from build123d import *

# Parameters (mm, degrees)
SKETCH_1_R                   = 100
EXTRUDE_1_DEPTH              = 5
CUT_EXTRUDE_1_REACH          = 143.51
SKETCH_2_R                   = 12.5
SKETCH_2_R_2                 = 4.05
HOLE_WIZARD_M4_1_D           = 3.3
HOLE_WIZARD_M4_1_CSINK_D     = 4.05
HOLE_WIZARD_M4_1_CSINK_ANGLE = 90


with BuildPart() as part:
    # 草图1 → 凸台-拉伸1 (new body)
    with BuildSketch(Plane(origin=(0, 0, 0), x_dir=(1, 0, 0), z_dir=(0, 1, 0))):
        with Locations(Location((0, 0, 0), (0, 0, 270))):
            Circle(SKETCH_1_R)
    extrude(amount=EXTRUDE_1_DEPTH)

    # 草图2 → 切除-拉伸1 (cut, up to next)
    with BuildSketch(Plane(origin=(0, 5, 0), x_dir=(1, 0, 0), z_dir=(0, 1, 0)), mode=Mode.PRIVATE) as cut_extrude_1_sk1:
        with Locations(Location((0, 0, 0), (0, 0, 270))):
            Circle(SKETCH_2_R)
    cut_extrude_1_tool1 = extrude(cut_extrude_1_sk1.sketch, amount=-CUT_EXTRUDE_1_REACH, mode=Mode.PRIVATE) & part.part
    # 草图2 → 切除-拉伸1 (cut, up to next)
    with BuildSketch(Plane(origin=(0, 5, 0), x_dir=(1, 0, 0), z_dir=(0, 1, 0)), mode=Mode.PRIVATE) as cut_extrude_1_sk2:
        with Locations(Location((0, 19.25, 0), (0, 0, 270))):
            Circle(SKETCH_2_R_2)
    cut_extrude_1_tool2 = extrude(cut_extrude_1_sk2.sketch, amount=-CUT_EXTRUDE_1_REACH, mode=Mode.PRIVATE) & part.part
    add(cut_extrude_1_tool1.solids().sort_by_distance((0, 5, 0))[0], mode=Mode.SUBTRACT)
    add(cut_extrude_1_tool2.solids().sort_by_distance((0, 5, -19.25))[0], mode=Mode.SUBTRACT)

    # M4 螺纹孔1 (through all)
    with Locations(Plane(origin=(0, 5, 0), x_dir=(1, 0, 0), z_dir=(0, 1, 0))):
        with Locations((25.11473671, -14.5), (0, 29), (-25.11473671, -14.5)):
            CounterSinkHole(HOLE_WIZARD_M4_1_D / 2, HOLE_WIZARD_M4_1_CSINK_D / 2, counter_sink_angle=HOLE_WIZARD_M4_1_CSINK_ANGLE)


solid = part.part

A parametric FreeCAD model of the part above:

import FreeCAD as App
import Part
import Sketcher

V = App.Vector
Q = App.Units.Quantity

doc = App.newDocument("Part")
body = doc.addObject("PartDesign::Body", "Body")

# Sketch on XZ plane
sketch1 = body.newObject("Sketcher::SketchObject", "Sketch")
sketch1.AttachmentSupport = (doc.getObject("XZ_Plane"), [""])
sketch1.MapMode = "FlatFace"
sketch1.addGeometry(Part.Circle(V(0, 0, 0), V(0, 0, 1), 100), False)
sketch1.addConstraint(Sketcher.Constraint("Coincident", 0, 3, -1, 1))
sketch1.addConstraint(Sketcher.Constraint("Diameter", 0, Q("200 mm")))
pad1 = body.newObject("PartDesign::Pad", "Pad")
pad1.Profile = sketch1
pad1.Length = 5
pad1.Reversed = True

# Sketch on XZ plane
sketch2 = body.newObject("Sketcher::SketchObject", "Sketch001")
sketch2.AttachmentSupport = (doc.getObject("XZ_Plane"), [""])
sketch2.MapMode = "FlatFace"
sketch2.AttachmentOffset = App.Placement(V(0, 0, -5), App.Rotation())
sketch2.addGeometry(Part.Circle(V(0, 0, 0), V(0, 0, 1), 12), False)
sketch2.addConstraint(Sketcher.Constraint("Coincident", 0, 3, -1, 1))
sketch2.addConstraint(Sketcher.Constraint("Diameter", 0, Q("25 mm")))
pocket1 = body.newObject("PartDesign::Pocket", "Pocket")
pocket1.Profile = sketch2
pocket1.Type = "UpToFirst"
pocket1.Reversed = True

# Sketch on XZ plane
sketch3 = body.newObject("Sketcher::SketchObject", "Sketch002")
sketch3.AttachmentSupport = (doc.getObject("XZ_Plane"), [""])
sketch3.MapMode = "FlatFace"
sketch3.AttachmentOffset = App.Placement(V(0, 0, -5), App.Rotation())
sketch3.addGeometry(Part.Circle(V(0, -19.2, 0), V(0, 0, 1), 4), False)
sketch3.addConstraint(Sketcher.Constraint("PointOnObject", 0, 3, -2))
sketch3.addConstraint(Sketcher.Constraint("Diameter", 0, Q("8.1 mm")))
sketch3.addConstraint(Sketcher.Constraint("DistanceY", 0, 3, -1, 1, Q("19.25 mm")))
pocket2 = body.newObject("PartDesign::Pocket", "Pocket001")
pocket2.Profile = sketch3
pocket2.Type = "UpToFirst"
pocket2.Reversed = True

# Sketch on XZ plane
sketch4 = body.newObject("Sketcher::SketchObject", "Sketch003")
sketch4.AttachmentSupport = (doc.getObject("XZ_Plane"), [""])
sketch4.MapMode = "FlatFace"
sketch4.AttachmentOffset = App.Placement(V(0, 0, -5), App.Rotation())
sketch4.addGeometry(Part.Circle(V(25.1, 14.5, 0), V(0, 0, 1), 1.6), False)
sketch4.addGeometry(Part.Circle(V(0, -29, 0), V(0, 0, 1), 1.6), False)
sketch4.addGeometry(Part.Circle(V(-25.1, 14.5, 0), V(0, 0, 1), 1.6), False)
sketch4.addConstraint(Sketcher.Constraint("Equal", 0, 1))
sketch4.addConstraint(Sketcher.Constraint("Equal", 1, 2))
sketch4.addConstraint(Sketcher.Constraint("Symmetric", 0, 3, 2, 3, -2))
sketch4.addConstraint(Sketcher.Constraint("PointOnObject", 1, 3, -2))
sketch4.addConstraint(Sketcher.Constraint("Diameter", 0, Q("3.3 mm")))
sketch4.addConstraint(Sketcher.Constraint("DistanceY", 1, 3, -1, 1, Q("29 mm")))
sketch4.addConstraint(Sketcher.Constraint("DistanceY", -1, 1, 0, 3, Q("14.5 mm")))
sketch4.addConstraint(Sketcher.Constraint("DistanceX", -1, 1, 0, 3, Q("25.114737 mm")))
doc.recompute()
hole = body.newObject("PartDesign::Hole", "Hole")
hole.Profile = sketch4
hole.ThreadType = "None"
hole.Diameter = 3.3
hole.DepthType = "ThroughAll"
hole.HoleCutType = "Countersink"
hole.HoleCutDiameter = 4.05
hole.HoleCutCountersinkAngle = 90
hole.Reversed = True

doc.recompute()
